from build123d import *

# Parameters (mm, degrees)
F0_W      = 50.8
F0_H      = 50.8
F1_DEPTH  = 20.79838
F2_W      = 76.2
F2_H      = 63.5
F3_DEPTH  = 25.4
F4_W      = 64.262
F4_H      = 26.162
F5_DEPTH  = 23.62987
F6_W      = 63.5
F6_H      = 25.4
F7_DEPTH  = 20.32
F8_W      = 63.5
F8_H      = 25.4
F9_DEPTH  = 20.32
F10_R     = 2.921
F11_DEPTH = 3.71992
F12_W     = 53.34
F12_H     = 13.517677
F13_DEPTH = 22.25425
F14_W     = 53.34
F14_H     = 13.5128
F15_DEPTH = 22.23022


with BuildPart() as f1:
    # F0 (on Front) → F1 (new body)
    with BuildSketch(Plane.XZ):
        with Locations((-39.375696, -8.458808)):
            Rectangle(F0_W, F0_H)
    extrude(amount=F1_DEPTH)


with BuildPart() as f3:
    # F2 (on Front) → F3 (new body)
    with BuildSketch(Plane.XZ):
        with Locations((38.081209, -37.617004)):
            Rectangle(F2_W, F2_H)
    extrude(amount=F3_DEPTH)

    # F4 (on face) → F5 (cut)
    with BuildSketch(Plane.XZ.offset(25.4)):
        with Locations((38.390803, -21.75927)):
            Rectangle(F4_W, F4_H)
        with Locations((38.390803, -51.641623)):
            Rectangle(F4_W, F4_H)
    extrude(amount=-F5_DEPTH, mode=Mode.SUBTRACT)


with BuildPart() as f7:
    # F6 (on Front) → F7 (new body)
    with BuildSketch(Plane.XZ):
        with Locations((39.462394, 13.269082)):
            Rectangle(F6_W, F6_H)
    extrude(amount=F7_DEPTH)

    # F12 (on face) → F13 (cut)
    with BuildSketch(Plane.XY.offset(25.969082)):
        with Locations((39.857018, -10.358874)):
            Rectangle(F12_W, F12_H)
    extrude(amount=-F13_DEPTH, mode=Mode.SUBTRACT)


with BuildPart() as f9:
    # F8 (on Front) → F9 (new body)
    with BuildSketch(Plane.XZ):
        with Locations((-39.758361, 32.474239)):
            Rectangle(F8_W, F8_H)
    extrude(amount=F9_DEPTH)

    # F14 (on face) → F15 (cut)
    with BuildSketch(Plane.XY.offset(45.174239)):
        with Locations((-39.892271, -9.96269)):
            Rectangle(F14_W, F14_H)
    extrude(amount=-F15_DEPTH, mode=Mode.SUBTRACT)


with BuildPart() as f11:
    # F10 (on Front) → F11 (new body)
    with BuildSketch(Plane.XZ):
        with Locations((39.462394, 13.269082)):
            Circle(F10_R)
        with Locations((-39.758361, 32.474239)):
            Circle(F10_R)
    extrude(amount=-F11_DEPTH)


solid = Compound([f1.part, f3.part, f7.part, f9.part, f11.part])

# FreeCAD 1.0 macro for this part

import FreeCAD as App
import Part
import Sketcher
from FreeCAD import Vector
Q = App.Units.Quantity


def add_polygon(sketch, points):
    """Adds a closed chain of lines whose ends are joined by coincident constraints."""
    first, n = sketch.GeometryCount, len(points)
    for a, b in zip(points, points[1:] + points[:1]):
        sketch.addGeometry(Part.LineSegment(App.Vector(*a, 0), App.Vector(*b, 0)), False)
    for i in range(n):
        sketch.addConstraint(Sketcher.Constraint("Coincident", first + i, 2, first + (i + 1) % n, 1))

doc = App.newDocument("Part")
body = doc.addObject("PartDesign::Body", "Body")

sketch1 = body.newObject("Sketcher::SketchObject", "Sketch")
sketch1.AttachmentSupport = (doc.getObject("XZ_Plane"), [""])
sketch1.MapMode = "FlatFace"
add_polygon(sketch1, [(-64.775696, 16.941192), (-64.775696, -33.858808), (-13.975696, -33.858808), (-13.975696, 16.941192)])
sketch1.addConstraint([
    Sketcher.Constraint("Vertical", 0),
    Sketcher.Constraint("Horizontal", 1),
    Sketcher.Constraint("Vertical", 2),
    Sketcher.Constraint("Horizontal", 3),
    Sketcher.Constraint("Equal", 3, 0),
    Sketcher.Constraint("DistanceX", 1, 1, 1, 2, Q("2 in")),
    Sketcher.Constraint("DistanceY", 0, 2, -1, 1, Q("33.858808 mm")),
    Sketcher.Constraint("DistanceX", 0, 2, -1, 1, Q("64.775696 mm")),
])
pad1 = body.newObject("PartDesign::Pad", "Pad")
pad1.Profile = sketch1
pad1.Length = 20.79838
body2 = doc.addObject("PartDesign::Body", "Body001")

sketch2 = body2.newObject("Sketcher::SketchObject", "Sketch001")
sketch2.AttachmentSupport = (doc.getObject("XZ_Plane001"), [""])
sketch2.MapMode = "FlatFace"
add_polygon(sketch2, [(-0.018791, -5.867004), (-0.018791, -69.367004), (76.181209, -69.367004), (76.181209, -5.867004)])
sketch2.addConstraint([
    Sketcher.Constraint("Vertical", 0),
    Sketcher.Constraint("Horizontal", 1),
    Sketcher.Constraint("Vertical", 2),
    Sketcher.Constraint("Horizontal", 3),
    Sketcher.Constraint("DistanceX", 1, 1, 1, 2, Q("3 in")),
    Sketcher.Constraint("DistanceY", 0, 2, 0, 1, Q("2.5 in")),
    Sketcher.Constraint("DistanceX", 0, 2, -1, 1, Q("0.018791 mm")),
    Sketcher.Constraint("DistanceY", 0, 2, -1, 1, Q("69.367004 mm")),
])
pad2 = body2.newObject("PartDesign::Pad", "Pad001")
pad2.Profile = sketch2
pad2.Length = Q("1 in")

sketch3 = body2.newObject("Sketcher::SketchObject", "Sketch002")
sketch3.AttachmentSupport = (doc.getObject("XZ_Plane001"), [""])
sketch3.MapMode = "FlatFace"
sketch3.AttachmentOffset = App.Placement(Vector(0, 0, 1 * 25.4), App.Rotation())
add_polygon(sketch3, [(6.259803, -8.67827), (6.259803, -34.84027), (70.521803, -34.84027), (70.521803, -8.67827)])
add_polygon(sketch3, [(6.259803, -38.560623), (6.259803, -64.722623), (70.521803, -64.722623), (70.521803, -38.560623)])
sketch3.addConstraint([
    Sketcher.Constraint("Vertical", 0),
    Sketcher.Constraint("Horizontal", 1),
    Sketcher.Constraint("Vertical", 2),
    Sketcher.Constraint("Horizontal", 3),
    Sketcher.Constraint("Vertical", 4),
    Sketcher.Constraint("Horizontal", 5),
    Sketcher.Constraint("Vertical", 6),
    Sketcher.Constraint("Horizontal", 7),
    Sketcher.Constraint("Vertical", 3, 2, 4, 2),
    Sketcher.Constraint("Vertical", 2, 2, 5, 2),
    Sketcher.Constraint("Equal", 2, 4),
    Sketcher.Constraint("DistanceX", 1, 1, 1, 2, Q("2.53 in")),
    Sketcher.Constraint("DistanceY", 0, 2, 0, 1, Q("1.03 in")),
    Sketcher.Constraint("DistanceY", 0, 2, -1, 1, Q("34.84027 mm")),
    Sketcher.Constraint("DistanceX", -1, 1, 0, 2, Q("6.259803 mm")),
    Sketcher.Constraint("DistanceY", 4, 2, -1, 1, Q("64.722623 mm")),
])
pocket1 = body2.newObject("PartDesign::Pocket", "Pocket")
pocket1.Profile = sketch3
pocket1.Length = 23.62987
body3 = doc.addObject("PartDesign::Body", "Body002")

sketch4 = body3.newObject("Sketcher::SketchObject", "Sketch003")
sketch4.AttachmentSupport = (doc.getObject("XZ_Plane002"), [""])
sketch4.MapMode = "FlatFace"
add_polygon(sketch4, [(7.712394, 25.969082), (7.712394, 0.569082), (71.212394, 0.569082), (71.212394, 25.969082)])
sketch4.addConstraint([
    Sketcher.Constraint("Vertical", 0),
    Sketcher.Constraint("Horizontal", 1),
    Sketcher.Constraint("Vertical", 2),
    Sketcher.Constraint("Horizontal", 3),
    Sketcher.Constraint("DistanceY", 0, 2, 0, 1, Q("1 in")),
    Sketcher.Constraint("DistanceX", 1, 1, 1, 2, Q("2.5 in")),
    Sketcher.Constraint("DistanceY", -1, 1, 0, 2, Q("0.569082 mm")),
    Sketcher.Constraint("DistanceX", -1, 1, 0, 2, Q("7.712394 mm")),
])
pad3 = body3.newObject("PartDesign::Pad", "Pad002")
pad3.Profile = sketch4
pad3.Length = Q("0.8 in")

sketch5 = body3.newObject("Sketcher::SketchObject", "Sketch004")
sketch5.AttachmentSupport = (doc.getObject("XY_Plane002"), [""])
sketch5.MapMode = "FlatFace"
sketch5.AttachmentOffset = App.Placement(Vector(0, 0, 25.969082), App.Rotation())
add_polygon(sketch5, [(13.187018, -3.600036), (13.187018, -17.117712), (66.527018, -17.117712), (66.527018, -3.600036)])
sketch5.addConstraint([
    Sketcher.Constraint("Vertical", 0),
    Sketcher.Constraint("Horizontal", 1),
    Sketcher.Constraint("Vertical", 2),
    Sketcher.Constraint("Horizontal", 3),
    Sketcher.Constraint("DistanceX", 1, 1, 1, 2, Q("2.1 in")),
    Sketcher.Constraint("DistanceY", 0, 2, 0, 1, Q("13.517677 mm")),
    Sketcher.Constraint("DistanceX", -1, 1, 1, 2, Q("66.527018 mm")),
    Sketcher.Constraint("DistanceY", 0, 2, -1, 1, Q("17.117712 mm")),
])
pocket2 = body3.newObject("PartDesign::Pocket", "Pocket001")
pocket2.Profile = sketch5
pocket2.Length = 22.25425
body4 = doc.addObject("PartDesign::Body", "Body003")

sketch6 = body4.newObject("Sketcher::SketchObject", "Sketch005")
sketch6.AttachmentSupport = (doc.getObject("XZ_Plane003"), [""])
sketch6.MapMode = "FlatFace"
add_polygon(sketch6, [(-71.508361, 45.174239), (-71.508361, 19.774239), (-8.008361, 19.774239), (-8.008361, 45.174239)])
sketch6.addConstraint([
    Sketcher.Constraint("Vertical", 0),
    Sketcher.Constraint("Horizontal", 1),
    Sketcher.Constraint("Vertical", 2),
    Sketcher.Constraint("Horizontal", 3),
    Sketcher.Constraint("DistanceY", 0, 2, 0, 1, Q("1 in")),
    Sketcher.Constraint("DistanceX", 1, 1, 1, 2, Q("2.5 in")),
    Sketcher.Constraint("DistanceX", 0, 2, -1, 1, Q("71.508361 mm")),
    Sketcher.Constraint("DistanceY", -1, 1, 0, 2, Q("19.774239 mm")),
])
pad4 = body4.newObject("PartDesign::Pad", "Pad003")
pad4.Profile = sketch6
pad4.Length = Q("0.8 in")

sketch7 = body4.newObject("Sketcher::SketchObject", "Sketch006")
sketch7.AttachmentSupport = (doc.getObject("XY_Plane003"), [""])
sketch7.MapMode = "FlatFace"
sketch7.AttachmentOffset = App.Placement(Vector(0, 0, 45.174239), App.Rotation())
add_polygon(sketch7, [(-66.562271, -3.20629), (-66.562271, -16.71909), (-13.222271, -16.71909), (-13.222271, -3.20629)])
sketch7.addConstraint([
    Sketcher.Constraint("Vertical", 0),
    Sketcher.Constraint("Horizontal", 1),
    Sketcher.Constraint("Vertical", 2),
    Sketcher.Constraint("Horizontal", 3),
    Sketcher.Constraint("DistanceX", 1, 1, 1, 2, Q("2.1 in")),
    Sketcher.Constraint("DistanceY", 0, 2, 0, 1, Q("0.532 in")),
    Sketcher.Constraint("DistanceX", 0, 2, -1, 1, Q("66.562271 mm")),
    Sketcher.Constraint("DistanceY", 0, 2, -1, 1, Q("16.71909 mm")),
])
pocket3 = body4.newObject("PartDesign::Pocket", "Pocket002")
pocket3.Profile = sketch7
pocket3.Length = 22.23022
body5 = doc.addObject("PartDesign::Body", "Body004")
body5.AllowCompound = True

sketch8 = body5.newObject("Sketcher::SketchObject", "Sketch007")
sketch8.AttachmentSupport = (doc.getObject("XZ_Plane004"), [""])
sketch8.MapMode = "FlatFace"
sketch8.addGeometry([
    Part.Circle(Vector(39.462394, 13.269082, 0), Vector(0, 0, 1), 2.921),
    Part.Circle(Vector(-39.758361, 32.474239, 0), Vector(0, 0, 1), 2.921),
], False)
sketch8.addConstraint([
    Sketcher.Constraint("Equal", 0, 1),
    Sketcher.Constraint("Diameter", 0, Q("0.23 in")),
    Sketcher.Constraint("DistanceY", -1, 1, 0, 3, Q("13.269082 mm")),
    Sketcher.Constraint("DistanceX", 1, 3, -1, 1, Q("39.758361 mm")),
    Sketcher.Constraint("DistanceY", -1, 1, 1, 3, Q("32.474239 mm")),
    Sketcher.Constraint("DistanceX", -1, 1, 0, 3, Q("39.462394 mm")),
])
pad5 = body5.newObject("PartDesign::Pad", "Pad004")
pad5.Profile = sketch8
pad5.Length = 3.71992
pad5.Reversed = True

doc.recompute()
